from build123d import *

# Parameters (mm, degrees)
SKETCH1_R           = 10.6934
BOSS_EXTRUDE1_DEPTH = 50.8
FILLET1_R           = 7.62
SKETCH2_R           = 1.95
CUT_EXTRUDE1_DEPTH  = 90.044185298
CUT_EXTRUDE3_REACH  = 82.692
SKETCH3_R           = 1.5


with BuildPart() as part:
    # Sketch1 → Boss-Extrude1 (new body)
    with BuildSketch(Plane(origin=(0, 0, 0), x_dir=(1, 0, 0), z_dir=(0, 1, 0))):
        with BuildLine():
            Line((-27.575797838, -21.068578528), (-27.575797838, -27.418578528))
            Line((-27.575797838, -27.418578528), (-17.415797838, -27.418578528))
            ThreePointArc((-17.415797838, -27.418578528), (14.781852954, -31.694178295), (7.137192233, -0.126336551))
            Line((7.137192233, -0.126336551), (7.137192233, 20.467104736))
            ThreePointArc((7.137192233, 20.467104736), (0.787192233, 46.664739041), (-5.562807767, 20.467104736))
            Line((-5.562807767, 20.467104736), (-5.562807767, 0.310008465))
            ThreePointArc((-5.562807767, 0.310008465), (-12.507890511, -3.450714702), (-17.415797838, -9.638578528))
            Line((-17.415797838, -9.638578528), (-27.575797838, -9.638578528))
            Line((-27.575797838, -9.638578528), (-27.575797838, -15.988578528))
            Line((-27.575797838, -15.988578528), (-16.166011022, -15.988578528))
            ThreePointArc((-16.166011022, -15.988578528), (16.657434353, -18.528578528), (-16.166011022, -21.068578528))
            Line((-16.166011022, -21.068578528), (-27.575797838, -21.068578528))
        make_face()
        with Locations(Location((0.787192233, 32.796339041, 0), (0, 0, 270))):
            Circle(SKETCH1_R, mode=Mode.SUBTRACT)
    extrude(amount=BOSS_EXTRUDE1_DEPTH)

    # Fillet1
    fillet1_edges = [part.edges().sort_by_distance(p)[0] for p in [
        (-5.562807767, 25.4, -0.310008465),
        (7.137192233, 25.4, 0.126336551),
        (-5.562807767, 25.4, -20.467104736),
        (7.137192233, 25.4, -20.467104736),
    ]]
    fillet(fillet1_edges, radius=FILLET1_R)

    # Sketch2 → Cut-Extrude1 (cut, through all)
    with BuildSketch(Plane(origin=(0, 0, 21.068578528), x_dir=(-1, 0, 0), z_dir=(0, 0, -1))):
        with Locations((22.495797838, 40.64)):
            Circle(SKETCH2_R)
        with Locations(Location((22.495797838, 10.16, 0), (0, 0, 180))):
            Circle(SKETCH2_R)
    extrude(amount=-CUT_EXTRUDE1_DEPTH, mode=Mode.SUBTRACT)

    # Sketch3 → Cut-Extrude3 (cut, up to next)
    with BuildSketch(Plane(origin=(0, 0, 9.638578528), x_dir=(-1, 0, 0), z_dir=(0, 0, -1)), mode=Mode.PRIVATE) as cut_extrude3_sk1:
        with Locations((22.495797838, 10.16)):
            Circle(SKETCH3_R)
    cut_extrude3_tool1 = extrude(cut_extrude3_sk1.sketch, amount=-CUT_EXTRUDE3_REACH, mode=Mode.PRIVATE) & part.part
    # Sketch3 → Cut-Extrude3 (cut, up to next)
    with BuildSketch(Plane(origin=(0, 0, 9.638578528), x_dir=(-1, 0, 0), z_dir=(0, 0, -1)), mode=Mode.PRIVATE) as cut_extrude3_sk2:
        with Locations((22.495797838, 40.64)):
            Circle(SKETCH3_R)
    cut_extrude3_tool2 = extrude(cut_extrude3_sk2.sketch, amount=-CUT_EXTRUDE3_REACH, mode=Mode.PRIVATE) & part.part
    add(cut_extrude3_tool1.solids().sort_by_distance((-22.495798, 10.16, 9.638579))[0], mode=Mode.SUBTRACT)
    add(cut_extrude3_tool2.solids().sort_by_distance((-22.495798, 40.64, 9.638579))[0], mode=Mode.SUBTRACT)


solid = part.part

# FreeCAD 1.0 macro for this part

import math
import FreeCAD as App
import Part
import Sketcher

V = App.Vector
Q = App.Units.Quantity


def edges_at(feature, points):
    """Names of the edges that pass closest to the given points."""
    edges = feature.Shape.Edges
    near = lambda p: min(range(len(edges)), key=lambda i: edges[i].distToShape(Part.Vertex(*p))[0])
    return sorted({f"Edge{near(p) + 1}" for p in points})

doc = App.newDocument("Part")
body = doc.addObject("PartDesign::Body", "Body")

sketch1 = doc.addObject("Sketcher::SketchObject", "Sketch")
body.addObject(sketch1)
sketch1.AttachmentSupport = (doc.XZ_Plane, [""])
sketch1.MapMode = "FlatFace"
sketch1.addGeometry(Part.LineSegment(V(-27.575798, 21.068579, 0), V(-27.575798, 27.418579, 0)), False)
sketch1.addGeometry(Part.LineSegment(V(-27.575798, 27.418579, 0), V(-17.415798, 27.418579, 0)), False)
sketch1.addGeometry(Part.ArcOfCircle(Part.Circle(V(0.147434, 18.528579, 0), V(0, 0, 1), 19.685), math.radians(-69.201627), math.radians(153.152787)), False)
sketch1.addGeometry(Part.LineSegment(V(7.137192, 0.126337, 0), V(7.137192, -20.467105, 0)), False)
sketch1.addGeometry(Part.ArcOfCircle(Part.Circle(V(0.787192, -32.796339, 0), V(0, 0, 1), 13.8684), math.radians(117.250099), math.radians(422.749901)), False)
sketch1.addGeometry(Part.LineSegment(V(-5.562808, -20.467105, 0), V(-5.562808, -0.310008, 0)), False)
sketch1.addGeometry(Part.ArcOfCircle(Part.Circle(V(0.147434, 18.528579, 0), V(0, 0, 1), 19.685), math.radians(-153.152787), math.radians(-106.862798)), False)
sketch1.addGeometry(Part.LineSegment(V(-17.415798, 9.638579, 0), V(-27.575798, 9.638579, 0)), False)
sketch1.addGeometry(Part.LineSegment(V(-27.575798, 9.638579, 0), V(-27.575798, 15.988579, 0)), False)
sketch1.addGeometry(Part.LineSegment(V(-27.575798, 15.988579, 0), V(-16.166011, 15.988579, 0)), False)
sketch1.addGeometry(Part.ArcOfCircle(Part.Circle(V(0.147434, 18.528579, 0), V(0, 0, 1), 16.51), math.radians(-171.150117), math.radians(171.150117)), False)
sketch1.addGeometry(Part.LineSegment(V(-16.166011, 21.068579, 0), V(-27.575798, 21.068579, 0)), False)
sketch1.addGeometry(Part.Circle(V(0.787192, -32.796339, 0), V(0, 0, 1), 10.6934), False)
sketch1.addConstraint(Sketcher.Constraint("Coincident", 0, 2, 1, 1))
sketch1.addConstraint(Sketcher.Constraint("Coincident", 1, 2, 2, 2))
sketch1.addConstraint(Sketcher.Constraint("Coincident", 2, 1, 3, 1))
sketch1.addConstraint(Sketcher.Constraint("Coincident", 3, 2, 4, 2))
sketch1.addConstraint(Sketcher.Constraint("Coincident", 4, 1, 5, 1))
sketch1.addConstraint(Sketcher.Constraint("Coincident", 5, 2, 6, 2))
sketch1.addConstraint(Sketcher.Constraint("Coincident", 6, 1, 7, 1))
sketch1.addConstraint(Sketcher.Constraint("Coincident", 7, 2, 8, 1))
sketch1.addConstraint(Sketcher.Constraint("Coincident", 8, 2, 9, 1))
sketch1.addConstraint(Sketcher.Constraint("Coincident", 9, 2, 10, 1))
sketch1.addConstraint(Sketcher.Constraint("Coincident", 10, 2, 11, 1))
sketch1.addConstraint(Sketcher.Constraint("Coincident", 11, 2, 0, 1))
sketch1.addConstraint(Sketcher.Constraint("Vertical", 0))
sketch1.addConstraint(Sketcher.Constraint("Horizontal", 1))
sketch1.addConstraint(Sketcher.Constraint("Vertical", 3))
sketch1.addConstraint(Sketcher.Constraint("Vertical", 5))
sketch1.addConstraint(Sketcher.Constraint("Horizontal", 7))
sketch1.addConstraint(Sketcher.Constraint("Vertical", 8))
sketch1.addConstraint(Sketcher.Constraint("Horizontal", 9))
sketch1.addConstraint(Sketcher.Constraint("Horizontal", 11))
sketch1.addConstraint(Sketcher.Constraint("Coincident", 6, 3, 2, 3))
sketch1.addConstraint(Sketcher.Constraint("Coincident", 10, 3, 2, 3))
sketch1.addConstraint(Sketcher.Constraint("Coincident", 12, 3, 4, 3))
sketch1.addConstraint(Sketcher.Constraint("Equal", 2, 6))
sketch1.addConstraint(Sketcher.Constraint("Horizontal", 3, 2, 4, 1))
sketch1.addConstraint(Sketcher.Constraint("Vertical", 1, 2, 6, 1))
sketch1.addConstraint(Sketcher.Constraint("Vertical", 0, 2, 7, 2))
sketch1.addConstraint(Sketcher.Constraint("Vertical", 9, 2, 10, 2))
sketch1.addConstraint(Sketcher.Constraint("Radius", 10, Q("0.65 in")))
sketch1.addConstraint(Sketcher.Constraint("Diameter", 12, Q("0.842 in")))
sketch1.addConstraint(Sketcher.Constraint("DistanceX", 1, 1, 1, 2, Q("0.4 in")))
sketch1.addConstraint(Sketcher.Constraint("Radius", 2, Q("0.775 in")))
sketch1.addConstraint(Sketcher.Constraint("Radius", 4, Q("0.546 in")))
sketch1.addConstraint(Sketcher.Constraint("DistanceY", 0, 1, 0, 2, Q("0.25 in")))
sketch1.addConstraint(Sketcher.Constraint("DistanceX", 4, 1, 3, 2, Q("0.5 in")))
sketch1.addConstraint(Sketcher.Constraint("DistanceY", 6, 1, 1, 2, Q("0.7 in")))
sketch1.addConstraint(Sketcher.Constraint("DistanceY", 3, 2, 3, 1, Q("20.593441 mm")))
sketch1.addConstraint(Sketcher.Constraint("DistanceY", 5, 1, 5, 2, Q("20.157096 mm")))
sketch1.addConstraint(Sketcher.Constraint("DistanceY", -1, 1, 2, 3, Q("18.528579 mm")))
sketch1.addConstraint(Sketcher.Constraint("DistanceX", 9, 2, -1, 1, Q("16.166011 mm")))
pad1 = doc.addObject("PartDesign::Pad", "Pad")
body.addObject(pad1)
pad1.Profile = sketch1
pad1.Length = Q("2 in")
pad1.Reversed = True
doc.recompute()

fillet = doc.addObject("PartDesign::Fillet", "Fillet")
body.addObject(fillet)
fillet.Base = (pad1, edges_at(pad1, [
    (-5.563, 25.4, -0.31),
    (7.137, 25.4, 0.126),
    (-5.563, 25.4, -20.467),
    (7.137, 25.4, -20.467),
]))
fillet.Radius = Q("0.3 in")

sketch2 = doc.addObject("Sketcher::SketchObject", "Sketch001")
body.addObject(sketch2)
sketch2.AttachmentSupport = (doc.XY_Plane, [""])
sketch2.MapMode = "FlatFace"
sketch2.AttachmentOffset = App.Placement(V(0, 0, 21.068579), App.Rotation())
sketch2.addGeometry(Part.Circle(V(-22.495798, 40.64, 0), V(0, 0, 1), 1.95), False)
sketch2.addGeometry(Part.Circle(V(-22.495798, 10.16, 0), V(0, 0, 1), 1.95), False)
sketch2.addConstraint(Sketcher.Constraint("Equal", 0, 1))
sketch2.addConstraint(Sketcher.Constraint("Vertical", 0, 3, 1, 3))
sketch2.addConstraint(Sketcher.Constraint("DistanceY", -1, 1, 0, 3, Q("1.6 in")))
sketch2.addConstraint(Sketcher.Constraint("DistanceY", -1, 1, 1, 3, Q("0.4 in")))
sketch2.addConstraint(Sketcher.Constraint("Diameter", 0, Q("3.9 mm")))
sketch2.addConstraint(Sketcher.Constraint("DistanceX", 0, 3, -1, 1, Q("22.495798 mm")))
pocket1 = doc.addObject("PartDesign::Pocket", "Pocket")
body.addObject(pocket1)
pocket1.Profile = sketch2
pocket1.Type = "ThroughAll"
pocket1.Reversed = True

sketch3 = doc.addObject("Sketcher::SketchObject", "Sketch002")
body.addObject(sketch3)
sketch3.AttachmentSupport = (doc.XY_Plane, [""])
sketch3.MapMode = "FlatFace"
sketch3.AttachmentOffset = App.Placement(V(0, 0, 9.638579), App.Rotation())
sketch3.addGeometry(Part.Circle(V(-22.495798, 10.16, 0), V(0, 0, 1), 1.5), False)
sketch3.addConstraint(Sketcher.Constraint("DistanceY", -1, 1, 0, 3, Q("0.4 in")))
sketch3.addConstraint(Sketcher.Constraint("Diameter", 0, Q("3 mm")))
sketch3.addConstraint(Sketcher.Constraint("DistanceX", 0, 3, -1, 1, Q("22.495798 mm")))
pocket2 = doc.addObject("PartDesign::Pocket", "Pocket001")
body.addObject(pocket2)
pocket2.Profile = sketch3
pocket2.Type = "UpToFirst"
pocket2.Reversed = True

sketch4 = doc.addObject("Sketcher::SketchObject", "Sketch003")
body.addObject(sketch4)
sketch4.AttachmentSupport = (doc.XY_Plane, [""])
sketch4.MapMode = "FlatFace"
sketch4.AttachmentOffset = App.Placement(V(0, 0, 9.638579), App.Rotation())
sketch4.addGeometry(Part.Circle(V(-22.495798, 40.64, 0), V(0, 0, 1), 1.5), False)
sketch4.addConstraint(Sketcher.Constraint("DistanceY", -1, 1, 0, 3, Q("1.6 in")))
sketch4.addConstraint(Sketcher.Constraint("Diameter", 0, Q("3 mm")))
sketch4.addConstraint(Sketcher.Constraint("DistanceX", 0, 3, -1, 1, Q("22.495798 mm")))
pocket3 = doc.addObject("PartDesign::Pocket", "Pocket002")
body.addObject(pocket3)
pocket3.Profile = sketch4
pocket3.Type = "UpToFirst"
pocket3.Reversed = True

doc.recompute()
